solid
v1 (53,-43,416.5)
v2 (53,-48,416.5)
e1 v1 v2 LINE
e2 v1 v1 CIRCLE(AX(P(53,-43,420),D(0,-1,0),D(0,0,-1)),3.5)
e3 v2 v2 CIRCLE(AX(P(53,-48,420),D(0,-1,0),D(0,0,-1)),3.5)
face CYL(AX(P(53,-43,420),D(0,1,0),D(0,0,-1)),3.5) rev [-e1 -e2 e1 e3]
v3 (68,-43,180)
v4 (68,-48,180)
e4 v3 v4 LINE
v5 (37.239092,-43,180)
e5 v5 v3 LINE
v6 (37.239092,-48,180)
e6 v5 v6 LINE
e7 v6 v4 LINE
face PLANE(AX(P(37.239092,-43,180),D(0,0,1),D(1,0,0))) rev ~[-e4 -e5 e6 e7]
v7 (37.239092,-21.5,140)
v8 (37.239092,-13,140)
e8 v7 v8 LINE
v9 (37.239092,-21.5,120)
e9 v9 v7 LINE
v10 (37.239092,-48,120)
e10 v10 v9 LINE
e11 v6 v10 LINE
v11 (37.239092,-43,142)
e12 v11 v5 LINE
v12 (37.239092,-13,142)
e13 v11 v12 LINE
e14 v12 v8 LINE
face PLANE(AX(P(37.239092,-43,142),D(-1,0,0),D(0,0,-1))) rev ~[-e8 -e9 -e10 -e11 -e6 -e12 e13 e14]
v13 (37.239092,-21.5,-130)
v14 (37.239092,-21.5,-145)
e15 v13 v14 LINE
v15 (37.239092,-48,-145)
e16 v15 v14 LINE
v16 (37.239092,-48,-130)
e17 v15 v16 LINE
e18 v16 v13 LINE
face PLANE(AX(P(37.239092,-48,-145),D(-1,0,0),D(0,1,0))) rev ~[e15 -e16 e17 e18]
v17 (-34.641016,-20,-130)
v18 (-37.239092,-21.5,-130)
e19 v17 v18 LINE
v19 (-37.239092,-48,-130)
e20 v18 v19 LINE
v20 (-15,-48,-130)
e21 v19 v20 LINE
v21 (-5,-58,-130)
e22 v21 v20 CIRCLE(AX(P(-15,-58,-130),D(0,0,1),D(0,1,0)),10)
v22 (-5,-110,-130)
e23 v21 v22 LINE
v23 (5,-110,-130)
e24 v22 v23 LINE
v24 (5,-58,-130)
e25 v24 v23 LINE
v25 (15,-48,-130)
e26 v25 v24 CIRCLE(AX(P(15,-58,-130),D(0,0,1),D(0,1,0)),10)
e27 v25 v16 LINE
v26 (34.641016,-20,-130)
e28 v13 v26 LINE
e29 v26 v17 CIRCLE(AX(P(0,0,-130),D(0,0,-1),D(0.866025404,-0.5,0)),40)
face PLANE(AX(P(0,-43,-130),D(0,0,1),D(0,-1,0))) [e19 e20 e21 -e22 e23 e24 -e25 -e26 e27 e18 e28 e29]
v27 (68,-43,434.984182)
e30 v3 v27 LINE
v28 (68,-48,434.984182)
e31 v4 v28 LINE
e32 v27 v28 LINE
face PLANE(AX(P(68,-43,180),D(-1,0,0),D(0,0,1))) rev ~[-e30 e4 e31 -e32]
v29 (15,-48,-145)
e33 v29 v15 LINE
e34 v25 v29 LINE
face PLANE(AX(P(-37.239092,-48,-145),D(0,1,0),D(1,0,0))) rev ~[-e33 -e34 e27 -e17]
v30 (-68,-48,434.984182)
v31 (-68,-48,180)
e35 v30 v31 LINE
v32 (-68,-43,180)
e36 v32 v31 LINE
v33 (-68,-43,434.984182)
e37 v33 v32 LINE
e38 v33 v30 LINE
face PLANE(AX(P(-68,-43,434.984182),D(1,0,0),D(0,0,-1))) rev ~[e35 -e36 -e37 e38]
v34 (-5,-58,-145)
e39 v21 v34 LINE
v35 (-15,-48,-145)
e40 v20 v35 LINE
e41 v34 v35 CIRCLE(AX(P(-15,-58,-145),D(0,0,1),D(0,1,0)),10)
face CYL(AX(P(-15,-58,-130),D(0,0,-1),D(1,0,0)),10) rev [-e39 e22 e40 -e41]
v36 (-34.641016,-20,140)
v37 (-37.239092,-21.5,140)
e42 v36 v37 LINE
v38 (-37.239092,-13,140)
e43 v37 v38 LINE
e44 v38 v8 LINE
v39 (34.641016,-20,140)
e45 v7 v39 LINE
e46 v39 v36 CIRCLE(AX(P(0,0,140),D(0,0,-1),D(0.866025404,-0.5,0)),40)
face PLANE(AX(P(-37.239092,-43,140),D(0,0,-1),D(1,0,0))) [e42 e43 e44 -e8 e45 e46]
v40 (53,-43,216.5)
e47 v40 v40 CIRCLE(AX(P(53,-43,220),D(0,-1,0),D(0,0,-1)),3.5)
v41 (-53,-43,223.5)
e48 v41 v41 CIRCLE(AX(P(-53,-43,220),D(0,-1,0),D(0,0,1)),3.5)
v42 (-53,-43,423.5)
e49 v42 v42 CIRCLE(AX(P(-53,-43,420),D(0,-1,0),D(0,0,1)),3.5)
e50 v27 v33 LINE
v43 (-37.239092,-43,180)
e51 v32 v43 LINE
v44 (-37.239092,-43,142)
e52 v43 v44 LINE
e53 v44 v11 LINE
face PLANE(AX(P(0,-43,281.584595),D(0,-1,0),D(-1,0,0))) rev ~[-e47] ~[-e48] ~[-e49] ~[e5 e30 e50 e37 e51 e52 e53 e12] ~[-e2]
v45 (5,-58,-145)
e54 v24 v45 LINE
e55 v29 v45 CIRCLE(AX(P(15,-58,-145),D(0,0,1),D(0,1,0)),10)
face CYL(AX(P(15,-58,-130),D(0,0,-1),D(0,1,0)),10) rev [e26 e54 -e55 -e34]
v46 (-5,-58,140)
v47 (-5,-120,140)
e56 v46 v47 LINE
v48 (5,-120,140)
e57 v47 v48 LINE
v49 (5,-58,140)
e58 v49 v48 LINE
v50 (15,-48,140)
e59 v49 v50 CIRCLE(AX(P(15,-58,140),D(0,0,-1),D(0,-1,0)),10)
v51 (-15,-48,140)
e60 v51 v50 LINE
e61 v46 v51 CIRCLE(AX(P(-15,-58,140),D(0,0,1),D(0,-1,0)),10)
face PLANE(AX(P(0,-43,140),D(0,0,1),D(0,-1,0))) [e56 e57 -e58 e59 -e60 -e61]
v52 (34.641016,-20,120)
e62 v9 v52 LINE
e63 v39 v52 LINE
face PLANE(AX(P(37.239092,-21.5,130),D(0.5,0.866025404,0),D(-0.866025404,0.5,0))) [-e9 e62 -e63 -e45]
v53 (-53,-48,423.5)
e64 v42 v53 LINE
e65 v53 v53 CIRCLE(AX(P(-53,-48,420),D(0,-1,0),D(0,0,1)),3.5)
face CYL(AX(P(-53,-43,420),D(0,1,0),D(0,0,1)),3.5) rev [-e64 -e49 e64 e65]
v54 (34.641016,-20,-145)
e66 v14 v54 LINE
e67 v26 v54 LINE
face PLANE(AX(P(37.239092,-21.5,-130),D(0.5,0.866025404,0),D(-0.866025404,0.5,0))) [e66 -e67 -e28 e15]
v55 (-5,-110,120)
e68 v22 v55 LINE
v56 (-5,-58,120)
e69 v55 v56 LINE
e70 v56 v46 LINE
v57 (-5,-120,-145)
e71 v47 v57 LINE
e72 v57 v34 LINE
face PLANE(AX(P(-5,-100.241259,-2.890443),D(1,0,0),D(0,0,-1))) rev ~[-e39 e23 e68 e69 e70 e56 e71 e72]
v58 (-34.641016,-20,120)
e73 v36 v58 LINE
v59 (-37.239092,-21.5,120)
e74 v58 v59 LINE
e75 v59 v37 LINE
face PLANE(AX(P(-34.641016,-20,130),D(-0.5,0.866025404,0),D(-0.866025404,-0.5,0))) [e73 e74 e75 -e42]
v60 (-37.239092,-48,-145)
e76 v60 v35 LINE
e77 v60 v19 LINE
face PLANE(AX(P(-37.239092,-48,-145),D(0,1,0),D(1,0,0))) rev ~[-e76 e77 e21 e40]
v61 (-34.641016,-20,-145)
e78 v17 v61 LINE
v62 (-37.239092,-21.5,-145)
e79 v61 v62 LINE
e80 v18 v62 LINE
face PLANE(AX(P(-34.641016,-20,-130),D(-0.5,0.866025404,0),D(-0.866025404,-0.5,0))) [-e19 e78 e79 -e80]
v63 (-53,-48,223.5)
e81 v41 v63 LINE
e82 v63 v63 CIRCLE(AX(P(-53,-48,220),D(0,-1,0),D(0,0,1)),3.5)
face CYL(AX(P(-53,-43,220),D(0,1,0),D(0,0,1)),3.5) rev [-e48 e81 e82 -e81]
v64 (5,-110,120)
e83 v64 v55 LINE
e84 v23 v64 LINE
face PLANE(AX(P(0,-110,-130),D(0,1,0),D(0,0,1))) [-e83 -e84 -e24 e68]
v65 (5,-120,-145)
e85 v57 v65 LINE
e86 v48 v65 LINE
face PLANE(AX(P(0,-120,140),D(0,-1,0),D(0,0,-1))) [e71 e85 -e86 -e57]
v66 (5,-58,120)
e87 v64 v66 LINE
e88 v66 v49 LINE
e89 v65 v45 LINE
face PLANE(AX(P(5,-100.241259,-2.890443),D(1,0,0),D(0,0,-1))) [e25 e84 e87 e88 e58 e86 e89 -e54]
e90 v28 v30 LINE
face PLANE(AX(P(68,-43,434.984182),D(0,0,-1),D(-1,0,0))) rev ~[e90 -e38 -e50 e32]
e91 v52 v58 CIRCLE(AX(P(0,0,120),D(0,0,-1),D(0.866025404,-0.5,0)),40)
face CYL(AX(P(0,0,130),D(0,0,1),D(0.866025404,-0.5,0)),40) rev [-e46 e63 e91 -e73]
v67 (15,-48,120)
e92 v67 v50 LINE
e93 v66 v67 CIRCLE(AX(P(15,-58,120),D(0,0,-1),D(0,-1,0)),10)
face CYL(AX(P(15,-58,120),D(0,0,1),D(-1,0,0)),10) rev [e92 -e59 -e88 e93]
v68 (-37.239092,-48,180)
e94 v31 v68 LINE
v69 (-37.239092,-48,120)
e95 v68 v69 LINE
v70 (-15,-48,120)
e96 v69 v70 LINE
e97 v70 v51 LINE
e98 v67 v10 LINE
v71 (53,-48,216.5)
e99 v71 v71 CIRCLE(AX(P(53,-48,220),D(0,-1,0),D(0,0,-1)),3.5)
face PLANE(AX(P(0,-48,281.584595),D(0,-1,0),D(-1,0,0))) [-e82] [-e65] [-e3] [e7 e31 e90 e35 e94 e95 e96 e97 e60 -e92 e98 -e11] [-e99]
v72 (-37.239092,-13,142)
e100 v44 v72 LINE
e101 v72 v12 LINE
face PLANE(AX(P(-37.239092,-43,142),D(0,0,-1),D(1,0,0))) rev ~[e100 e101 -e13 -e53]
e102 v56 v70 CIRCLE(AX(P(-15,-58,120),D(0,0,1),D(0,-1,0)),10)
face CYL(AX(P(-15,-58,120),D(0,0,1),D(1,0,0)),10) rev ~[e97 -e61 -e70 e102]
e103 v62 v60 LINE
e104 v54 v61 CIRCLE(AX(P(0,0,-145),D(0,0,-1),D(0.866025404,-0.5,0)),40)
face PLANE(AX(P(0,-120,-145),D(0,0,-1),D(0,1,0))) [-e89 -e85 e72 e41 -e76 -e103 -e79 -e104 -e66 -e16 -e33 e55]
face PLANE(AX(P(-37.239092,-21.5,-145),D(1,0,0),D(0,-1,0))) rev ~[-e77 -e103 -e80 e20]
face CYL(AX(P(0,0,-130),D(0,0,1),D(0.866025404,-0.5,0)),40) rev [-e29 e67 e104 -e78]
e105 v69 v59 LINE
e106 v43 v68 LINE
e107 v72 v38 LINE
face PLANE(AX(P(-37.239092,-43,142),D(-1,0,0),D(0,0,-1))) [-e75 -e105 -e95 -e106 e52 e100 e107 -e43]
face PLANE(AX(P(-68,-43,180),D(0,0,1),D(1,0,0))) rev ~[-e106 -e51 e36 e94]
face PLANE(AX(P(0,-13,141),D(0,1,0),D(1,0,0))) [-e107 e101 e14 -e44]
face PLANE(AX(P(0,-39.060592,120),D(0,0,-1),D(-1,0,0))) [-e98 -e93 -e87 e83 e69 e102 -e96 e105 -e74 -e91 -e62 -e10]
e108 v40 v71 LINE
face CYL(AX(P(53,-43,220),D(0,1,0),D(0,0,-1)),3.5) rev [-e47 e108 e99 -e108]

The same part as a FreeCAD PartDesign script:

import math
import FreeCAD as App
import Part
import Sketcher
Q = App.Units.Quantity


def edges_at(feature, points):
    """Names of the edges that pass closest to the given points."""
    edges = feature.Shape.Edges
    near = lambda p: min(range(len(edges)), key=lambda i: edges[i].distToShape(Part.Vertex(*p))[0])
    return sorted({f"Edge{near(p) + 1}" for p in points})


def add_polygon(sketch, points):
    """Adds a closed chain of lines whose ends are joined by coincident constraints."""
    first, n = sketch.GeometryCount, len(points)
    for a, b in zip(points, points[1:] + points[:1]):
        sketch.addGeometry(Part.LineSegment(App.Vector(*a, 0), App.Vector(*b, 0)), False)
    for i in range(n):
        sketch.addConstraint(Sketcher.Constraint("Coincident", first + i, 2, first + (i + 1) % n, 1))

doc = App.newDocument("Part")
params = doc.addObject("Spreadsheet::Sheet", "Params")
for row, (alias, value) in enumerate([
    ("sketch1_radius", "43 mm"),
    ("sketch1_radius2", "40 mm"),
    ("pad1_length", "20 mm"),
    ("sketch2_radius", "43 mm"),
    ("sketch2_radius2", "40 mm"),
    ("pad2_length", "15 mm"),
    ("sketch3_radius", "43 mm"),
    ("sketch3_height", "26.5 mm"),
    ("pad3_length", "15 mm"),
    ("sketch4_diameter", "7 mm"),
    ("sketch4_width", "136 mm"),
    ("sketch4_height", "60 mm"),
    ("pad4_length", "5 mm"),
    ("sketch5_radius", "43 mm"),
    ("sketch5_height", "26.5 mm"),
    ("pad5_length", "20 mm"),
    ("sketch6_width", "77 mm"),
    ("sketch6_width2", "67 mm"),
    ("sketch6_height", "285 mm"),
    ("sketch6_height2", "15 mm"),
    ("sketch6_height3", "250 mm"),
    ("pad6_length", "10 mm"),
    ("fillet_radius", "10 mm"),
    ("sketch7_height", "2 mm"),
    ("pad7_length", "30 mm"),
], start=1):
    params.set(f"A{row}", alias)
    params.set(f"B{row}", "=" + value)
    params.setAlias(f"B{row}", alias)

body = doc.addObject("PartDesign::Body", "Body")

sketch1 = body.newObject("Sketcher::SketchObject", "Sketch")
sketch1.AttachmentSupport = (doc.getObject("XY_Plane"), [""])
sketch1.MapMode = "FlatFace"
sketch1.AttachmentOffset = App.Placement(App.Vector(0, 0, 130), App.Rotation())
sketch1.addGeometry([
    Part.LineSegment(App.Vector(-34.6, -20, 0), App.Vector(-37.2, -21.5, 0)),
    Part.ArcOfCircle(Part.Circle(App.Vector(0, 0, 0), App.Vector(0, 0, 1), 43), math.radians(-150), math.radians(-30)),
    Part.LineSegment(App.Vector(37.2, -21.5, 0), App.Vector(34.6, -20, 0)),
    Part.ArcOfCircle(Part.Circle(App.Vector(0, 0, 0), App.Vector(0, 0, 1), 40), math.radians(-150), math.radians(-30)),
], False)
sketch1.addConstraint([
    Sketcher.Constraint("Coincident", 0, 2, 1, 1),
    Sketcher.Constraint("Coincident", 1, 2, 2, 1),
    Sketcher.Constraint("Coincident", 2, 2, 3, 2),
    Sketcher.Constraint("Coincident", 3, 1, 0, 1),
    Sketcher.Constraint("Coincident", 1, 3, -1, 1),
    Sketcher.Constraint("Coincident", 3, 3, -1, 1),
    Sketcher.Constraint("Horizontal", 0, 2, 1, 2),
    Sketcher.Constraint("Horizontal", 2, 2, 3, 1),
    Sketcher.Constraint("Radius", 1, 43.0),
    Sketcher.Constraint("Radius", 3, 40.0),
    Sketcher.Constraint("Angle", 0, Q("-150 deg")),
    Sketcher.Constraint("DistanceY", 2, 2, -1, 1, 20.0),
])
sketch1.setExpression("Constraints[8]", "Params.sketch1_radius")
sketch1.setExpression("Constraints[9]", "Params.sketch1_radius2")
pad1 = body.newObject("PartDesign::Pad", "Pad")
pad1.Profile = sketch1
pad1.setExpression("Length", "Params.pad1_length")
pad1.Midplane = True
body2 = doc.addObject("PartDesign::Body", "Body001")

sketch2 = body2.newObject("Sketcher::SketchObject", "Sketch001")
sketch2.AttachmentSupport = (doc.getObject("XY_Plane001"), [""])
sketch2.MapMode = "FlatFace"
sketch2.AttachmentOffset = App.Placement(App.Vector(0, 0, -130), App.Rotation())
sketch2.addGeometry([
    Part.LineSegment(App.Vector(-34.6, -20, 0), App.Vector(-37.2, -21.5, 0)),
    Part.ArcOfCircle(Part.Circle(App.Vector(0, 0, 0), App.Vector(0, 0, 1), 43), math.radians(-150), math.radians(-30)),
    Part.LineSegment(App.Vector(37.2, -21.5, 0), App.Vector(34.6, -20, 0)),
    Part.ArcOfCircle(Part.Circle(App.Vector(0, 0, 0), App.Vector(0, 0, 1), 40), math.radians(-150), math.radians(-30)),
], False)
sketch2.addConstraint([
    Sketcher.Constraint("Coincident", 0, 2, 1, 1),
    Sketcher.Constraint("Coincident", 1, 2, 2, 1),
    Sketcher.Constraint("Coincident", 2, 2, 3, 2),
    Sketcher.Constraint("Coincident", 3, 1, 0, 1),
    Sketcher.Constraint("Coincident", 1, 3, -1, 1),
    Sketcher.Constraint("Coincident", 3, 3, -1, 1),
    Sketcher.Constraint("Horizontal", 0, 2, 1, 2),
    Sketcher.Constraint("Horizontal", 2, 2, 3, 1),
    Sketcher.Constraint("Radius", 1, 43.0),
    Sketcher.Constraint("Radius", 3, 40.0),
    Sketcher.Constraint("Angle", 0, Q("-150 deg")),
    Sketcher.Constraint("DistanceY", 2, 2, -1, 1, 20.0),
])
sketch2.setExpression("Constraints[8]", "Params.sketch2_radius")
sketch2.setExpression("Constraints[9]", "Params.sketch2_radius2")
pad2 = body2.newObject("PartDesign::Pad", "Pad001")
pad2.Profile = sketch2
pad2.setExpression("Length", "Params.pad2_length")
pad2.Reversed = True

sketch3 = body2.newObject("Sketcher::SketchObject", "Sketch002")
sketch3.AttachmentSupport = (doc.getObject("XY_Plane001"), [""])
sketch3.MapMode = "FlatFace"
sketch3.AttachmentOffset = App.Placement(App.Vector(0, 0, -145), App.Rotation())
sketch3.addGeometry([
    Part.LineSegment(App.Vector(-37, -48, 0), App.Vector(-37, -22, 0)),
    Part.ArcOfCircle(Part.Circle(App.Vector(0, 0, 0), App.Vector(0, 0, 1), 43), math.radians(-150), math.radians(-30)),
    Part.LineSegment(App.Vector(37, -22, 0), App.Vector(37, -48, 0)),
    Part.LineSegment(App.Vector(37, -48, 0), App.Vector(-37, -48, 0)),
], False)
sketch3.addConstraint([
    Sketcher.Constraint("Coincident", 0, 2, 1, 1),
    Sketcher.Constraint("Coincident", 1, 2, 2, 1),
    Sketcher.Constraint("Coincident", 2, 2, 3, 1),
    Sketcher.Constraint("Coincident", 3, 2, 0, 1),
    Sketcher.Constraint("Vertical", 0),
    Sketcher.Constraint("Vertical", 2),
    Sketcher.Constraint("Horizontal", 3),
    Sketcher.Constraint("Coincident", 1, 3, -1, 1),
    Sketcher.Constraint("Horizontal", 0, 2, 1, 2),
    Sketcher.Constraint("Radius", 1, 43.0),
    Sketcher.Constraint("DistanceY", 0, 1, 0, 2, 26.5),
    Sketcher.Constraint("DistanceY", 2, 2, -1, 1, 48.0),
])
sketch3.setExpression("Constraints[9]", "Params.sketch3_radius")
sketch3.setExpression("Constraints[10]", "Params.sketch3_height")
pad3 = body2.newObject("PartDesign::Pad", "Pad002")
pad3.Profile = sketch3
pad3.setExpression("Length", "Params.pad3_length")
body3 = doc.addObject("PartDesign::Body", "Body002")

sketch4 = body3.newObject("Sketcher::SketchObject", "Sketch003")
sketch4.AttachmentSupport = (doc.getObject("XZ_Plane002"), [""])
sketch4.MapMode = "FlatFace"
sketch4.AttachmentOffset = App.Placement(App.Vector(0, 0, 43), App.Rotation())
add_polygon(sketch4, [(37.2, 180), (68, 180), (68, 435), (-68, 435), (-68, 180), (-37.2, 180), (-37.2, 120), (37.2, 120)])
sketch4.addGeometry(Part.Circle(App.Vector(53, 420, 0), App.Vector(0, 0, 1), 3.5), False)
sketch4.addGeometry(Part.Circle(App.Vector(-53, 420, 0), App.Vector(0, 0, 1), 3.5), False)
sketch4.addGeometry(Part.Circle(App.Vector(53, 220, 0), App.Vector(0, 0, 1), 3.5), False)
sketch4.addGeometry(Part.Circle(App.Vector(-53, 220, 0), App.Vector(0, 0, 1), 3.5), False)
sketch4.addConstraint([
    Sketcher.Constraint("Horizontal", 0),
    Sketcher.Constraint("Vertical", 1),
    Sketcher.Constraint("Horizontal", 2),
    Sketcher.Constraint("Vertical", 3),
    Sketcher.Constraint("Horizontal", 4),
    Sketcher.Constraint("Vertical", 5),
    Sketcher.Constraint("Horizontal", 6),
    Sketcher.Constraint("Vertical", 7),
    Sketcher.Constraint("Equal", 8, 9),
    Sketcher.Constraint("Equal", 9, 10),
    Sketcher.Constraint("Equal", 10, 11),
    Sketcher.Constraint("Symmetric", 8, 3, 9, 3, -2),
    Sketcher.Constraint("Symmetric", 10, 3, 11, 3, -2),
    Sketcher.Constraint("Symmetric", 0, 2, 3, 2, -2),
    Sketcher.Constraint("Vertical", 8, 3, 10, 3),
    Sketcher.Constraint("Equal", 0, 4),
    Sketcher.Constraint("Diameter", 8, 7.0),
    Sketcher.Constraint("DistanceX", 2, 2, 2, 1, 136.0),
    Sketcher.Constraint("DistanceY", 5, 2, 5, 1, 60.0),
    Sketcher.Constraint("DistanceX", -1, 1, 8, 3, 53.0),
    Sketcher.Constraint("DistanceY", -1, 1, 8, 3, 420.0),
    Sketcher.Constraint("DistanceY", -1, 1, 10, 3, 220.0),
    Sketcher.Constraint("DistanceY", -1, 1, 0, 2, 180.0),
    Sketcher.Constraint("DistanceX", 0, 1, 0, 2, 30.760908),
    Sketcher.Constraint("DistanceY", 1, 1, 1, 2, 254.984182),
])
sketch4.setExpression("Constraints[24]", "Params.sketch4_diameter")
sketch4.setExpression("Constraints[25]", "Params.sketch4_width")
sketch4.setExpression("Constraints[26]", "Params.sketch4_height")
pad4 = body3.newObject("PartDesign::Pad", "Pad003")
pad4.Profile = sketch4
pad4.setExpression("Length", "Params.pad4_length")
body.AllowCompound = True
doc.recompute()

boolean = body.newObject("PartDesign::Boolean", "Boolean")
boolean.Type = "Fuse"
boolean.addObjects([body3])

sketch5 = body.newObject("Sketcher::SketchObject", "Sketch004")
sketch5.AttachmentSupport = (doc.getObject("XY_Plane"), [""])
sketch5.MapMode = "FlatFace"
sketch5.AttachmentOffset = App.Placement(App.Vector(0, 0, 140), App.Rotation())
sketch5.addGeometry([
    Part.LineSegment(App.Vector(37, -22, 0), App.Vector(37, -48, 0)),
    Part.LineSegment(App.Vector(37, -48, 0), App.Vector(-37, -48, 0)),
    Part.LineSegment(App.Vector(-37, -48, 0), App.Vector(-37, -22, 0)),
    Part.ArcOfCircle(Part.Circle(App.Vector(0, 0, 0), App.Vector(0, 0, 1), 43), math.radians(-150), math.radians(-30)),
], False)
sketch5.addConstraint([
    Sketcher.Constraint("Coincident", 0, 2, 1, 1),
    Sketcher.Constraint("Coincident", 1, 2, 2, 1),
    Sketcher.Constraint("Coincident", 2, 2, 3, 1),
    Sketcher.Constraint("Coincident", 3, 2, 0, 1),
    Sketcher.Constraint("Vertical", 0),
    Sketcher.Constraint("Horizontal", 1),
    Sketcher.Constraint("Vertical", 2),
    Sketcher.Constraint("Coincident", 3, 3, -1, 1),
    Sketcher.Constraint("Horizontal", 2, 2, 3, 2),
    Sketcher.Constraint("Radius", 3, 43.0),
    Sketcher.Constraint("DistanceY", 0, 2, 0, 1, 26.5),
    Sketcher.Constraint("DistanceY", 0, 2, -1, 1, 48.0),
])
sketch5.setExpression("Constraints[9]", "Params.sketch5_radius")
sketch5.setExpression("Constraints[10]", "Params.sketch5_height")
pad5 = body.newObject("PartDesign::Pad", "Pad004")
pad5.Profile = sketch5
pad5.setExpression("Length", "Params.pad5_length")
pad5.Reversed = True
doc.recompute()

boolean2 = body.newObject("PartDesign::Boolean", "Boolean001")
boolean2.Type = "Fuse"
boolean2.addObjects([body2])

sketch6 = body.newObject("Sketcher::SketchObject", "Sketch005")
sketch6.AttachmentSupport = (doc.getObject("YZ_Plane"), [""])
sketch6.MapMode = "FlatFace"
add_polygon(sketch6, [(-43, 140), (-120, 140), (-120, -145), (-43, -145), (-43, -130), (-110, -130), (-110, 120), (-43, 120)])
sketch6.addConstraint([
    Sketcher.Constraint("Horizontal", 0),
    Sketcher.Constraint("Vertical", 1),
    Sketcher.Constraint("Horizontal", 2),
    Sketcher.Constraint("Vertical", 3),
    Sketcher.Constraint("Horizontal", 4),
    Sketcher.Constraint("Vertical", 5),
    Sketcher.Constraint("Horizontal", 6),
    Sketcher.Constraint("Vertical", 7),
    Sketcher.Constraint("Vertical", 3, 2, 6, 2),
    Sketcher.Constraint("DistanceX", 0, 2, 0, 1, 77.0),
    Sketcher.Constraint("DistanceX", 4, 2, 4, 1, 67.0),
    Sketcher.Constraint("DistanceY", 1, 2, 1, 1, 285.0),
    Sketcher.Constraint("DistanceY", 3, 1, 3, 2, 15.0),
    Sketcher.Constraint("DistanceY", 5, 1, 5, 2, 250.0),
    Sketcher.Constraint("DistanceX", 0, 2, -1, 1, 120.0),
    Sketcher.Constraint("DistanceY", -1, 1, 0, 2, 140.0),
])
sketch6.setExpression("Constraints[17]", "Params.sketch6_width")
sketch6.setExpression("Constraints[18]", "Params.sketch6_width2")
sketch6.setExpression("Constraints[19]", "Params.sketch6_height")
sketch6.setExpression("Constraints[20]", "Params.sketch6_height2")
sketch6.setExpression("Constraints[21]", "Params.sketch6_height3")
pad6 = body.newObject("PartDesign::Pad", "Pad005")
pad6.Profile = sketch6
pad6.setExpression("Length", "Params.pad6_length")
pad6.Midplane = True
doc.recompute()

fillet = body.newObject("PartDesign::Fillet", "Fillet")
fillet.Base = (pad6, edges_at(pad6, [
    (-5, -48, 130),
    (5, -48, 130),
    (-5, -48, -137.5),
    (5, -48, -137.5),
]))
fillet.setExpression("Radius", "Params.fillet_radius")

sketch7 = body.newObject("Sketcher::SketchObject", "Sketch006")
sketch7.AttachmentSupport = (doc.getObject("XZ_Plane"), [""])
sketch7.MapMode = "FlatFace"
sketch7.AttachmentOffset = App.Placement(App.Vector(0, 0, 43), App.Rotation())
add_polygon(sketch7, [(-37.2, 140), (-37.2, 142), (37.2, 142), (37.2, 140)])
sketch7.addConstraint([
    Sketcher.Constraint("Vertical", 0),
    Sketcher.Constraint("Horizontal", 1),
    Sketcher.Constraint("Vertical", 2),
    Sketcher.Constraint("Horizontal", 3),
    Sketcher.Constraint("DistanceY", 0, 1, 0, 2, 2.0),
    Sketcher.Constraint("DistanceY", -1, 1, 0, 2, 142.0),
    Sketcher.Constraint("DistanceX", 1, 1, 1, 2, 74.478185),
    Sketcher.Constraint("DistanceX", 0, 2, -1, 1, 37.239092),
])
sketch7.setExpression("Constraints[8]", "Params.sketch7_height")
pad7 = body.newObject("PartDesign::Pad", "Pad006")
pad7.Profile = sketch7
pad7.setExpression("Length", "Params.pad7_length")
pad7.Reversed = True

doc.recompute()
